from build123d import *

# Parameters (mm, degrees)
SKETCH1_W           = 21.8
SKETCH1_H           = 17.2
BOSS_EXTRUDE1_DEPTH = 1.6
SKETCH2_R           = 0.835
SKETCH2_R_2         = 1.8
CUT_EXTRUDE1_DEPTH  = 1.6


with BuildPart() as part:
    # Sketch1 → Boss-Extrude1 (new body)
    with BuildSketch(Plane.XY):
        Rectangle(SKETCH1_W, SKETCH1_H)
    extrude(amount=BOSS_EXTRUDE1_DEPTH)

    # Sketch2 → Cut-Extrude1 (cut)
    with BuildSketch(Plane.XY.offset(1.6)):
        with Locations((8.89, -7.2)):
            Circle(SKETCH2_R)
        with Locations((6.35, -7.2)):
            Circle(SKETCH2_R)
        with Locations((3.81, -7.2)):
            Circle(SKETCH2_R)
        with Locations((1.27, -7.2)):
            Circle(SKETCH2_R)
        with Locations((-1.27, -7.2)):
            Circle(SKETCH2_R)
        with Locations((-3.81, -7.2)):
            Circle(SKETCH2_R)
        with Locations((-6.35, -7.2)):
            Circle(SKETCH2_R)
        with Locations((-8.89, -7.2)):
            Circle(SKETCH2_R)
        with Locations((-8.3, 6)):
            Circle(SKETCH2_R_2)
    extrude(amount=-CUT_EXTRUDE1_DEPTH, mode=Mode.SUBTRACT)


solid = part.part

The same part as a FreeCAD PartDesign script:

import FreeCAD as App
import Part
import Sketcher
Q = App.Units.Quantity


def add_polygon(sketch, points):
    """Adds a closed chain of lines whose ends are joined by coincident constraints."""
    first, n = sketch.GeometryCount, len(points)
    for a, b in zip(points, points[1:] + points[:1]):
        sketch.addGeometry(Part.LineSegment(App.Vector(*a, 0), App.Vector(*b, 0)), False)
    for i in range(n):
        sketch.addConstraint(Sketcher.Constraint("Coincident", first + i, 2, first + (i + 1) % n, 1))

doc = App.newDocument("Part")
body = doc.addObject("PartDesign::Body", "Body")

# Sketch on XY plane
sketch1 = doc.addObject("Sketcher::SketchObject", "Sketch")
body.addObject(sketch1)
sketch1.AttachmentSupport = (doc.XY_Plane, [""])
sketch1.MapMode = "FlatFace"
add_polygon(sketch1, [(-10.9, 8.6), (-10.9, -8.6), (10.9, -8.6), (10.9, 8.6)])  # lines 0-3
sketch1.addConstraint(Sketcher.Constraint("Vertical", 0))
sketch1.addConstraint(Sketcher.Constraint("Horizontal", 1))
sketch1.addConstraint(Sketcher.Constraint("Vertical", 2))
sketch1.addConstraint(Sketcher.Constraint("Horizontal", 3))
sketch1.addConstraint(Sketcher.Constraint("Symmetric", 0, 2, 2, 2, -1, 1))
sketch1.addConstraint(Sketcher.Constraint("DistanceX", 1, 1, 1, 2, Q("21.8 mm")))
sketch1.addConstraint(Sketcher.Constraint("DistanceY", 0, 2, 0, 1, Q("17.2 mm")))
pad1 = doc.addObject("PartDesign::Pad", "Pad")
body.addObject(pad1)
pad1.Profile = sketch1
pad1.Length = 1.6

# Sketch on XY plane
sketch2 = doc.addObject("Sketcher::SketchObject", "Sketch001")
body.addObject(sketch2)
sketch2.AttachmentSupport = (doc.XY_Plane, [""])
sketch2.MapMode = "FlatFace"
sketch2.AttachmentOffset = App.Placement(App.Vector(0, 0, 1.6), App.Rotation())
sketch2.addGeometry(Part.Circle(App.Vector(8.89, -7.2, 0), App.Vector(0, 0, 1), 0.835), False)
sketch2.addGeometry(Part.Circle(App.Vector(6.35, -7.2, 0), App.Vector(0, 0, 1), 0.835), False)
sketch2.addGeometry(Part.Circle(App.Vector(3.81, -7.2, 0), App.Vector(0, 0, 1), 0.835), False)
sketch2.addGeometry(Part.Circle(App.Vector(1.27, -7.2, 0), App.Vector(0, 0, 1), 0.835), False)
sketch2.addGeometry(Part.Circle(App.Vector(-1.27, -7.2, 0), App.Vector(0, 0, 1), 0.835), False)
sketch2.addGeometry(Part.Circle(App.Vector(-3.81, -7.2, 0), App.Vector(0, 0, 1), 0.835), False)
sketch2.addGeometry(Part.Circle(App.Vector(-6.35, -7.2, 0), App.Vector(0, 0, 1), 0.835), False)
sketch2.addGeometry(Part.Circle(App.Vector(-8.89, -7.2, 0), App.Vector(0, 0, 1), 0.835), False)
sketch2.addGeometry(Part.Circle(App.Vector(-8.3, 6, 0), App.Vector(0, 0, 1), 1.8), False)
sketch2.addConstraint(Sketcher.Constraint("Equal", 0, 1))
sketch2.addConstraint(Sketcher.Constraint("Equal", 1, 2))
sketch2.addConstraint(Sketcher.Constraint("Equal", 2, 3))
sketch2.addConstraint(Sketcher.Constraint("Equal", 3, 4))
sketch2.addConstraint(Sketcher.Constraint("Equal", 4, 5))
sketch2.addConstraint(Sketcher.Constraint("Equal", 5, 6))
sketch2.addConstraint(Sketcher.Constraint("Equal", 6, 7))
sketch2.addConstraint(Sketcher.Constraint("Symmetric", 3, 3, 4, 3, -2))
sketch2.addConstraint(Sketcher.Constraint("Symmetric", 2, 3, 5, 3, -2))
sketch2.addConstraint(Sketcher.Constraint("Symmetric", 1, 3, 6, 3, -2))
sketch2.addConstraint(Sketcher.Constraint("Symmetric", 0, 3, 7, 3, -2))
sketch2.addConstraint(Sketcher.Constraint("Horizontal", 0, 3, 1, 3))
sketch2.addConstraint(Sketcher.Constraint("Horizontal", 1, 3, 2, 3))
sketch2.addConstraint(Sketcher.Constraint("Horizontal", 2, 3, 3, 3))
sketch2.addConstraint(Sketcher.Constraint("Diameter", 8, Q("3.6 mm")))
sketch2.addConstraint(Sketcher.Constraint("Diameter", 0, Q("1.67 mm")))
sketch2.addConstraint(Sketcher.Constraint("DistanceY", -1, 1, 8, 3, Q("6 mm")))
sketch2.addConstraint(Sketcher.Constraint("DistanceY", 0, 3, -1, 1, Q("7.2 mm")))
sketch2.addConstraint(Sketcher.Constraint("DistanceX", 8, 3, -1, 1, Q("8.3 mm")))
sketch2.addConstraint(Sketcher.Constraint("DistanceX", 5, 3, 0, 3, Q("12.7 mm")))
sketch2.addConstraint(Sketcher.Constraint("DistanceX", 6, 3, 1, 3, Q("12.7 mm")))
sketch2.addConstraint(Sketcher.Constraint("DistanceX", -1, 1, 0, 3, Q("8.89 mm")))
sketch2.addConstraint(Sketcher.Constraint("DistanceX", -1, 1, 3, 3, Q("1.27 mm")))
pocket1 = doc.addObject("PartDesign::Pocket", "Pocket")
body.addObject(pocket1)
pocket1.Profile = sketch2
pocket1.Length = 1.6

doc.recompute()
